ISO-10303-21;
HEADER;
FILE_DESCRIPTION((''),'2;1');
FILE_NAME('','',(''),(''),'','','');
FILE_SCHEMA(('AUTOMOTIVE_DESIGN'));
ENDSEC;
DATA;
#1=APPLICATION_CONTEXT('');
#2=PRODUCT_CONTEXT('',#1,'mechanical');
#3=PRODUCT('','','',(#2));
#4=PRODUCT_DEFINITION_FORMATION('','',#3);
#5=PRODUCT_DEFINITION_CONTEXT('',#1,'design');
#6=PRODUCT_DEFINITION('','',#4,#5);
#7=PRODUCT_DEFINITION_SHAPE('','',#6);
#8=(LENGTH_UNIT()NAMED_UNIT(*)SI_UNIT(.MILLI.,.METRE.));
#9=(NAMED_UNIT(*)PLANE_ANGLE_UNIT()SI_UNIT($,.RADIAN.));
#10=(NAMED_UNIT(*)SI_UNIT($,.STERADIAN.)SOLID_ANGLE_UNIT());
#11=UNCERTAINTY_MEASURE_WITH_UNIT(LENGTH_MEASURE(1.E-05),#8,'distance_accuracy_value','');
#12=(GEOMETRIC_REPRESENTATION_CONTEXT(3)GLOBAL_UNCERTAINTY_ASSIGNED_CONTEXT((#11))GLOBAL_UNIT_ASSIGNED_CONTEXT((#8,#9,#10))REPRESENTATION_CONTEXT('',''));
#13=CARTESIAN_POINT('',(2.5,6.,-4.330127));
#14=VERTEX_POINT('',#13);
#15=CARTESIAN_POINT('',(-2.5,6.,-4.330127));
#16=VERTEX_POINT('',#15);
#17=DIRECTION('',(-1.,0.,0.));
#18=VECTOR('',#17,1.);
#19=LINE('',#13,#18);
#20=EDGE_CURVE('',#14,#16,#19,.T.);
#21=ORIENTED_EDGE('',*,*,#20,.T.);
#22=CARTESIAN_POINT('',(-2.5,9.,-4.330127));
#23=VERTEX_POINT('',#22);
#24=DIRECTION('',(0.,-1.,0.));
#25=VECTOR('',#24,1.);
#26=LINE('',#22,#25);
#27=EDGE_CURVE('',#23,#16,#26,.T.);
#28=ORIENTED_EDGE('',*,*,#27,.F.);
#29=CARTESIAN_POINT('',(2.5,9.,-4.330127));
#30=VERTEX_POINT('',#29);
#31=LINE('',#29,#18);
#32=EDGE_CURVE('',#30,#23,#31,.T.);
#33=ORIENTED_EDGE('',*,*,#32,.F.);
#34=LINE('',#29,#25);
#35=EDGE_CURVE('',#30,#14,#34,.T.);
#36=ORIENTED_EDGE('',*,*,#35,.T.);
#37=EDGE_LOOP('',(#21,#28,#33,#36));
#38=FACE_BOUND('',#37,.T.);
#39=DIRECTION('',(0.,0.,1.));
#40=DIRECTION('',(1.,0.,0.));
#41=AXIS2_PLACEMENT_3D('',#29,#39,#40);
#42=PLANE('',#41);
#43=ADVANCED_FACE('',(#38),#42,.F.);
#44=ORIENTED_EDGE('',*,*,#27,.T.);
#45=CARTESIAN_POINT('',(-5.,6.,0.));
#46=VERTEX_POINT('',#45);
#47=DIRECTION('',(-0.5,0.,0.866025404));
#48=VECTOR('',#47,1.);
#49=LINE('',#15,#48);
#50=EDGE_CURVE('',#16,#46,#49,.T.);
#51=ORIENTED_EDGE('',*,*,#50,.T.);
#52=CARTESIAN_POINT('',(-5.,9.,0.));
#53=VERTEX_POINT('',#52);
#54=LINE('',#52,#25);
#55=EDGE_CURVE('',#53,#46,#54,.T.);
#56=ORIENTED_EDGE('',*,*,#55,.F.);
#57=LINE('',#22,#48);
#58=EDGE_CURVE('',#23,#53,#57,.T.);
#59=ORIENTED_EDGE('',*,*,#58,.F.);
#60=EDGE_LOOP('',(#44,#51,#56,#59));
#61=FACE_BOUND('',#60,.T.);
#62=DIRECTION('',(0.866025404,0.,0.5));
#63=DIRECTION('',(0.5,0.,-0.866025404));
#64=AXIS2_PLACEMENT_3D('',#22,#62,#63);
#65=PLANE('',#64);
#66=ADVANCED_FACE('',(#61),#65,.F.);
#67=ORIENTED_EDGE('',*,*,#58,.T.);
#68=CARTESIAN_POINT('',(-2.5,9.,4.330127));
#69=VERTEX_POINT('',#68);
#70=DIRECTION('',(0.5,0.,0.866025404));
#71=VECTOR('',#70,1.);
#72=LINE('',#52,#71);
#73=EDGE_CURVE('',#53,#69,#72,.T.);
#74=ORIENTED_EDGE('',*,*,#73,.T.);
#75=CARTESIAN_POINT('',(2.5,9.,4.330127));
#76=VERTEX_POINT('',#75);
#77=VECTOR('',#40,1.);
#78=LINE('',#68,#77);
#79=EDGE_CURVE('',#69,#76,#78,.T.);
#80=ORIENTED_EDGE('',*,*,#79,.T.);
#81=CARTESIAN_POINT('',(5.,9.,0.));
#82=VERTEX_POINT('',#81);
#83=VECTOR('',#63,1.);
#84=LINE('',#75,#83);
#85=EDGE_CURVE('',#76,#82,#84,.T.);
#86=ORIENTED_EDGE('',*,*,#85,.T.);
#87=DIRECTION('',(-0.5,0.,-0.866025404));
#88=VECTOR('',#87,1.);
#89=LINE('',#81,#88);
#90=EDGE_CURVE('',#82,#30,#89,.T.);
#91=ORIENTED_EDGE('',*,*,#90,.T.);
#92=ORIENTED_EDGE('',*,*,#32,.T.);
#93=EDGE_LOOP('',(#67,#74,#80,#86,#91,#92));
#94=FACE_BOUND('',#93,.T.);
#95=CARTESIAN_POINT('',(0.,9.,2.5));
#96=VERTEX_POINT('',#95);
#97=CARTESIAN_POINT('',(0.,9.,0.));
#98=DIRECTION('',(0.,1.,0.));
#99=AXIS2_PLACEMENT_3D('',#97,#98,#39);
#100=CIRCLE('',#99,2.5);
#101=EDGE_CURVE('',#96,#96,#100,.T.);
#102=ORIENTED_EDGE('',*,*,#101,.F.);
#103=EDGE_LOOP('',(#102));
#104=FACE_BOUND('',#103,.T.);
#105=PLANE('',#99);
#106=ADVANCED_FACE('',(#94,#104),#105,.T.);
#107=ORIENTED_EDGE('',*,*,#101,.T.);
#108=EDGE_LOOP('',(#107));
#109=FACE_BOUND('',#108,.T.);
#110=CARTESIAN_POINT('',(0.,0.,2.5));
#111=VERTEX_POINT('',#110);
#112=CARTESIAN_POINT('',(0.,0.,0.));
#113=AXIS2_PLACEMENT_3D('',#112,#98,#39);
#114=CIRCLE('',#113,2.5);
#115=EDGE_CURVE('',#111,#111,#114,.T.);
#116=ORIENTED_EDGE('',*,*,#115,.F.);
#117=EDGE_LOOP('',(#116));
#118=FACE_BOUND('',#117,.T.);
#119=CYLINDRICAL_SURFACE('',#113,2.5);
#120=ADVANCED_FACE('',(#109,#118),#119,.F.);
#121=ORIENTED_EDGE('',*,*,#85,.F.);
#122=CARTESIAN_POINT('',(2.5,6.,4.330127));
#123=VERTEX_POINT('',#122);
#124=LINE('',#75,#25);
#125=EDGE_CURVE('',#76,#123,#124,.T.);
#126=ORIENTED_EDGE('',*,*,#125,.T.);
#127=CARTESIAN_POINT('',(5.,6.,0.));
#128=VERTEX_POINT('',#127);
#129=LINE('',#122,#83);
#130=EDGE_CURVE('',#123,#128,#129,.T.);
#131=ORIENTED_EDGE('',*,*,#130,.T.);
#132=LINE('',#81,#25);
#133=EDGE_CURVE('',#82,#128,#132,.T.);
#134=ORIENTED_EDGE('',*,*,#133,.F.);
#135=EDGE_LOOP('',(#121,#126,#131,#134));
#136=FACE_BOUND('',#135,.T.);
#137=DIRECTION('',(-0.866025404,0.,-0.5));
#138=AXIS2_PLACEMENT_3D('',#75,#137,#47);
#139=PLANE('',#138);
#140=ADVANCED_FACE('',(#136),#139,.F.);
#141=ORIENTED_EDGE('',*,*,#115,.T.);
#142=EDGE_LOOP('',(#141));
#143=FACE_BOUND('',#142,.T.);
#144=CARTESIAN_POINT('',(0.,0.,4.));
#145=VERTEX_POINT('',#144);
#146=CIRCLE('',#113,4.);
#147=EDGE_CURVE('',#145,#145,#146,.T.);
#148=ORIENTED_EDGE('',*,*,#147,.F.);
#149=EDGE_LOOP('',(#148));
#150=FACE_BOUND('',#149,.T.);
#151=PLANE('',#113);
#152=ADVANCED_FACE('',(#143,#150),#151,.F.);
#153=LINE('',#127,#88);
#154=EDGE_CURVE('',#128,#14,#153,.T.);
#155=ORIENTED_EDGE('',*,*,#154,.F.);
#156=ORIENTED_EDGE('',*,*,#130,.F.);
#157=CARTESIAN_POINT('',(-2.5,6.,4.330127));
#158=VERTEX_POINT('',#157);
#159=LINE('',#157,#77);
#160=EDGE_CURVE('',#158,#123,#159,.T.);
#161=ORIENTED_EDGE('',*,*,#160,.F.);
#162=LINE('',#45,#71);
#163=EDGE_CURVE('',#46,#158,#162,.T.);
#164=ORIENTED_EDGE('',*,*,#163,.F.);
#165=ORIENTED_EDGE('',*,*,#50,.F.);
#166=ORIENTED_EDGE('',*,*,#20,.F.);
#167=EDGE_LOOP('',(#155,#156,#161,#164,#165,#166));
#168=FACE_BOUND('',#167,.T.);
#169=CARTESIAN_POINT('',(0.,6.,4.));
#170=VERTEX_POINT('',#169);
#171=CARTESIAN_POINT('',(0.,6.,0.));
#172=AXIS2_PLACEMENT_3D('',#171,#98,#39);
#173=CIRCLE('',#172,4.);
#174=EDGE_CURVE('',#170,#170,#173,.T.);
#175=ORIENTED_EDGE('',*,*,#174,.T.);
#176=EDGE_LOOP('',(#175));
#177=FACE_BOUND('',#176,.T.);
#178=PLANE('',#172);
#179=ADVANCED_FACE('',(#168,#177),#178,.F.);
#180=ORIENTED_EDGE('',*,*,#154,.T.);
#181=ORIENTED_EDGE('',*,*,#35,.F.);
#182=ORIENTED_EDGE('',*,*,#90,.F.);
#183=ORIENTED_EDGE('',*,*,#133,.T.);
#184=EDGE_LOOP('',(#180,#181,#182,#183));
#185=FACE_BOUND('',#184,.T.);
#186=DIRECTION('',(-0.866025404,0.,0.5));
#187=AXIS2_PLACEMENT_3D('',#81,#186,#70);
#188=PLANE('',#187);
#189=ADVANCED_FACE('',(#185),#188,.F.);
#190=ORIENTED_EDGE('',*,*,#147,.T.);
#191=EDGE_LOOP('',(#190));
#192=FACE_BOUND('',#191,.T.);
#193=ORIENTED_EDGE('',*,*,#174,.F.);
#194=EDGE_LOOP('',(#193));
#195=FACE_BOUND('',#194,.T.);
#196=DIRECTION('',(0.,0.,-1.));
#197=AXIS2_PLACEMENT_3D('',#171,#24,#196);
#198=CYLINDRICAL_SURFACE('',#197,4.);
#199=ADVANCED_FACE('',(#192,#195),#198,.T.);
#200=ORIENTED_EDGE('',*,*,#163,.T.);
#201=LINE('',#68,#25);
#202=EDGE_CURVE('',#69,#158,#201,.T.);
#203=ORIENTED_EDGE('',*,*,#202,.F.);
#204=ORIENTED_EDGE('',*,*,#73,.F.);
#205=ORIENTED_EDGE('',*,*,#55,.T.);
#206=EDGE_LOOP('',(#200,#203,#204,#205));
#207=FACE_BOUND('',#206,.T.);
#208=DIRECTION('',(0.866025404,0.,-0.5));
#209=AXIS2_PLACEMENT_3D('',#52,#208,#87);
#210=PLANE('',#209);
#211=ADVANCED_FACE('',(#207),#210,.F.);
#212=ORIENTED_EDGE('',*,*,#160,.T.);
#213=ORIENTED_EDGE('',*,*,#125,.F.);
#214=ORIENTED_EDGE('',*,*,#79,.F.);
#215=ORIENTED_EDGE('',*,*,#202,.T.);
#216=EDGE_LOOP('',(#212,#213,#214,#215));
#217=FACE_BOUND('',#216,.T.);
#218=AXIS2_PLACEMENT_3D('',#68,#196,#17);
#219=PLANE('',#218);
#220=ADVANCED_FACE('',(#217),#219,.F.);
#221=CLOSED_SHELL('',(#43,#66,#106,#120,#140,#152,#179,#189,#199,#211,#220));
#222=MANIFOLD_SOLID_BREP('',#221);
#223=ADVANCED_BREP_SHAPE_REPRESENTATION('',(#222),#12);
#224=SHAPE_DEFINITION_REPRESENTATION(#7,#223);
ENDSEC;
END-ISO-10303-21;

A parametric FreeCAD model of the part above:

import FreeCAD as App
import Part
import Sketcher

V = App.Vector
Q = App.Units.Quantity


def add_polygon(sketch, points):
    """Adds a closed chain of lines whose ends are joined by coincident constraints."""
    first, n = sketch.GeometryCount, len(points)
    for a, b in zip(points, points[1:] + points[:1]):
        sketch.addGeometry(Part.LineSegment(App.Vector(*a, 0), App.Vector(*b, 0)), False)
    for i in range(n):
        sketch.addConstraint(Sketcher.Constraint("Coincident", first + i, 2, first + (i + 1) % n, 1))

doc = App.newDocument("Part")
body = doc.addObject("PartDesign::Body", "Body")

sketch1 = body.newObject("Sketcher::SketchObject", "Sketch")
sketch1.AttachmentSupport = (doc.getObject("XZ_Plane"), [""])
sketch1.MapMode = "FlatFace"
sketch1.addGeometry(Part.Circle(V(0, 0, 0), V(0, 0, 1), 4), False)
sketch1.addConstraint(Sketcher.Constraint("Coincident", 0, 3, -1, 1))
sketch1.addConstraint(Sketcher.Constraint("Diameter", 0, 8.0))
pad1 = body.newObject("PartDesign::Pad", "Pad")
pad1.Profile = sketch1
pad1.Length = 6
pad1.Reversed = True

sketch2 = body.newObject("Sketcher::SketchObject", "Sketch001")
sketch2.AttachmentSupport = (doc.getObject("XZ_Plane"), [""])
sketch2.MapMode = "FlatFace"
sketch2.AttachmentOffset = App.Placement(V(0, 0, -6), App.Rotation())
add_polygon(sketch2, [(2, 4), (5, 0), (2, -4), (-2, -4), (-5, 0), (-2, 4)])
sketch2.addConstraint(Sketcher.Constraint("Horizontal", 2))
sketch2.addConstraint(Sketcher.Constraint("Horizontal", 5))
sketch2.addConstraint(Sketcher.Constraint("Symmetric", 0, 2, 3, 2, -1, 1))
sketch2.addConstraint(Sketcher.Constraint("Symmetric", 1, 2, 4, 2, -1, 1))
sketch2.addConstraint(Sketcher.Constraint("PointOnObject", 0, 2, -1))
sketch2.addConstraint(Sketcher.Constraint("Parallel", 0, 3))
sketch2.addConstraint(Sketcher.Constraint("Vertical", 2, 2, 4, 2))
sketch2.addConstraint(Sketcher.Constraint("DistanceX", 2, 2, 2, 1, 5.0))
sketch2.addConstraint(Sketcher.Constraint("Angle", 0, Q("-60 deg")))
sketch2.addConstraint(Sketcher.Constraint("Distance", 0, 5.0))
pad2 = body.newObject("PartDesign::Pad", "Pad001")
pad2.Profile = sketch2
pad2.Length = 3
pad2.Reversed = True

sketch3 = body.newObject("Sketcher::SketchObject", "Sketch002")
sketch3.AttachmentSupport = (doc.getObject("XZ_Plane"), [""])
sketch3.MapMode = "FlatFace"
sketch3.AttachmentOffset = App.Placement(V(0, 0, -9), App.Rotation())
sketch3.addGeometry(Part.Circle(V(0, 0, 0), V(0, 0, 1), 2.5), False)
sketch3.addConstraint(Sketcher.Constraint("Coincident", 0, 3, -1, 1))
sketch3.addConstraint(Sketcher.Constraint("Diameter", 0, 5.0))
pocket1 = body.newObject("PartDesign::Pocket", "Pocket")
pocket1.Profile = sketch3
pocket1.Type = "ThroughAll"
pocket1.Reversed = True

doc.recompute()
